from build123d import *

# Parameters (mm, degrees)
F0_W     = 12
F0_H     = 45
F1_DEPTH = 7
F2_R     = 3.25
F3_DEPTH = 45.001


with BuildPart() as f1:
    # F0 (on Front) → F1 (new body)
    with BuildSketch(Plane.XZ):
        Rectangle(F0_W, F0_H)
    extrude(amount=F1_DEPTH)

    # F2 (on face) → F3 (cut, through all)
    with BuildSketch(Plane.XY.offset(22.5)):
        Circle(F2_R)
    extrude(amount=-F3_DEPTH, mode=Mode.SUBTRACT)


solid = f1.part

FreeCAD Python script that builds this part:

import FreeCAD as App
import Part
import Sketcher
Q = App.Units.Quantity


def add_polygon(sketch, points):
    """Adds a closed chain of lines whose ends are joined by coincident constraints."""
    first, n = sketch.GeometryCount, len(points)
    for a, b in zip(points, points[1:] + points[:1]):
        sketch.addGeometry(Part.LineSegment(App.Vector(*a, 0), App.Vector(*b, 0)), False)
    for i in range(n):
        sketch.addConstraint(Sketcher.Constraint("Coincident", first + i, 2, first + (i + 1) % n, 1))

doc = App.newDocument("Part")
params = doc.addObject("Spreadsheet::Sheet", "Params")
for row, (alias, value) in enumerate([
    ("sketch1_width", "12 mm"),
    ("sketch1_height", "45 mm"),
    ("pad1_length", "7 mm"),
    ("sketch2_diameter", "6.5 mm"),
], start=1):
    params.set(f"A{row}", alias)
    params.set(f"B{row}", "=" + value)
    params.setAlias(f"B{row}", alias)

body = doc.addObject("PartDesign::Body", "Body")

# Sketch on XZ plane
sketch1 = doc.addObject("Sketcher::SketchObject", "Sketch")
body.addObject(sketch1)
sketch1.AttachmentSupport = (doc.XZ_Plane, [""])
sketch1.MapMode = "FlatFace"
add_polygon(sketch1, [(-6, 22), (-6, -22), (6, -22), (6, 22)])  # lines 0-3
sketch1.addConstraint([
    Sketcher.Constraint("Vertical", 0),
    Sketcher.Constraint("Horizontal", 1),
    Sketcher.Constraint("Vertical", 2),
    Sketcher.Constraint("Horizontal", 3),
    Sketcher.Constraint("Symmetric", 0, 2, 2, 2, -1, 1),
    Sketcher.Constraint("DistanceX", 1, 1, 1, 2, Q("12 mm")),
    Sketcher.Constraint("DistanceY", 0, 2, 0, 1, Q("45 mm")),
])
sketch1.setExpression("Constraints[9]", "Params.sketch1_width")
sketch1.setExpression("Constraints[10]", "Params.sketch1_height")
pad1 = doc.addObject("PartDesign::Pad", "Pad")
body.addObject(pad1)
pad1.Profile = sketch1
pad1.setExpression("Length", "Params.pad1_length")

# Sketch on XY plane
sketch2 = doc.addObject("Sketcher::SketchObject", "Sketch001")
body.addObject(sketch2)
sketch2.AttachmentSupport = (doc.XY_Plane, [""])
sketch2.MapMode = "FlatFace"
sketch2.AttachmentOffset = App.Placement(App.Vector(0, 0, 22.5), App.Rotation())
sketch2.addGeometry(Part.Circle(App.Vector(0, 0, 0), App.Vector(0, 0, 1), 3.2), False)
sketch2.addConstraint([
    Sketcher.Constraint("Coincident", 0, 3, -1, 1),
    Sketcher.Constraint("Diameter", 0, Q("6.5 mm")),
])
sketch2.setExpression("Constraints[1]", "Params.sketch2_diameter")
pocket1 = doc.addObject("PartDesign::Pocket", "Pocket")
body.addObject(pocket1)
pocket1.Profile = sketch2
pocket1.Type = "ThroughAll"

doc.recompute()
